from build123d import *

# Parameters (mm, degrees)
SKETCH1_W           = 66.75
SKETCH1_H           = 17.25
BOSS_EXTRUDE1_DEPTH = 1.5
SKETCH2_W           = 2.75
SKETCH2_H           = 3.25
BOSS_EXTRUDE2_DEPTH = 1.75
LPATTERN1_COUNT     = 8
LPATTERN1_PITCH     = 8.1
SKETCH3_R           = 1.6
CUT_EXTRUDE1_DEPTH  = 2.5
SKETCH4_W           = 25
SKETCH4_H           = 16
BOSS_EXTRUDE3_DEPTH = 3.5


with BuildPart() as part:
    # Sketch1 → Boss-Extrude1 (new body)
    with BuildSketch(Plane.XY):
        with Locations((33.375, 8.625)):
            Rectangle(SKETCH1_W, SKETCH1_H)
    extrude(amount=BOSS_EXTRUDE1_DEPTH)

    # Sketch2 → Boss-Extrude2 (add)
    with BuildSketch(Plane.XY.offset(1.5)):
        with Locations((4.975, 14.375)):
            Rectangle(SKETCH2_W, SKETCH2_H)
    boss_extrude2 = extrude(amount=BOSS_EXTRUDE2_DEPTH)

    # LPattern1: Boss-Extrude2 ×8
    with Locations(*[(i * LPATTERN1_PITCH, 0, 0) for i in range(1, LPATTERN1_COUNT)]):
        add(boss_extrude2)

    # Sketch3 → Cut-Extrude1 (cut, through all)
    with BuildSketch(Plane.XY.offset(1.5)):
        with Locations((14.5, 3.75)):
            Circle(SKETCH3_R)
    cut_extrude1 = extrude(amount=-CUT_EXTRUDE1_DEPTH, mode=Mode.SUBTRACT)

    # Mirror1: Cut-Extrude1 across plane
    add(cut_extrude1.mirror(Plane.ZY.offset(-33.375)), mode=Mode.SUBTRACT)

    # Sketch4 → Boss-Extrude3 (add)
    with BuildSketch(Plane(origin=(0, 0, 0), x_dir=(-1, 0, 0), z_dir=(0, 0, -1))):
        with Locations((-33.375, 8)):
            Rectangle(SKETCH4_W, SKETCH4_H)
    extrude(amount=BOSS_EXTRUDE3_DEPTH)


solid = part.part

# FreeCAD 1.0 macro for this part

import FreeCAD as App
import Part
import Sketcher

V = App.Vector

doc = App.newDocument("Part")
params = doc.addObject("Spreadsheet::Sheet", "Params")
for row, (alias, value) in enumerate([
    ("sketch1_width", "66.75 mm"),
    ("sketch1_height", "17.25 mm"),
    ("pad1_length", "1.5 mm"),
    ("sketch2_width", "2.75 mm"),
    ("sketch2_height", "3.25 mm"),
    ("pad2_length", "1.75 mm"),
    ("linearpattern_pitch", "8.1 mm"),
    ("sketch3_diameter", "3.2 mm"),
    ("sketch4_width", "25 mm"),
    ("sketch4_height", "16 mm"),
    ("pad3_length", "3.5 mm"),
], start=1):
    params.set(f"A{row}", alias)
    params.set(f"B{row}", "=" + value)
    params.setAlias(f"B{row}", alias)

body = doc.addObject("PartDesign::Body", "Body")

sketch1 = body.newObject("Sketcher::SketchObject", "Sketch")
sketch1.AttachmentSupport = (doc.getObject("XY_Plane"), [""])
sketch1.MapMode = "FlatFace"
sketch1.addGeometry([
    Part.LineSegment(V(0, 17, 0), V(0, 0, 0)),
    Part.LineSegment(V(0, 0, 0), V(67, 0, 0)),
    Part.LineSegment(V(67, 0, 0), V(67, 17, 0)),
    Part.LineSegment(V(67, 17, 0), V(0, 17, 0)),
], False)
sketch1.addConstraint([
    Sketcher.Constraint("Coincident", 0, 2, 1, 1),
    Sketcher.Constraint("Coincident", 1, 2, 2, 1),
    Sketcher.Constraint("Coincident", 2, 2, 3, 1),
    Sketcher.Constraint("Coincident", 3, 2, 0, 1),
    Sketcher.Constraint("Vertical", 0),
    Sketcher.Constraint("Horizontal", 1),
    Sketcher.Constraint("Vertical", 2),
    Sketcher.Constraint("Horizontal", 3),
    Sketcher.Constraint("Coincident", 0, 2, -1, 1),
    Sketcher.Constraint("DistanceX", 1, 1, 1, 2, 66.75),
    Sketcher.Constraint("DistanceY", 0, 2, 0, 1, 17.25),
])
sketch1.setExpression("Constraints[9]", "Params.sketch1_width")
sketch1.setExpression("Constraints[10]", "Params.sketch1_height")
pad1 = body.newObject("PartDesign::Pad", "Pad")
pad1.Profile = sketch1
pad1.setExpression("Length", "Params.pad1_length")

sketch2 = body.newObject("Sketcher::SketchObject", "Sketch001")
sketch2.AttachmentSupport = (doc.getObject("XY_Plane"), [""])
sketch2.MapMode = "FlatFace"
sketch2.AttachmentOffset = App.Placement(V(0, 0, 1.5), App.Rotation())
sketch2.addGeometry([
    Part.LineSegment(V(3.6, 16, 0), V(3.6, 12.8, 0)),
    Part.LineSegment(V(3.6, 12.8, 0), V(6.3, 12.8, 0)),
    Part.LineSegment(V(6.3, 12.8, 0), V(6.3, 16, 0)),
    Part.LineSegment(V(6.3, 16, 0), V(3.6, 16, 0)),
], False)
sketch2.addConstraint([
    Sketcher.Constraint("Coincident", 0, 2, 1, 1),
    Sketcher.Constraint("Coincident", 1, 2, 2, 1),
    Sketcher.Constraint("Coincident", 2, 2, 3, 1),
    Sketcher.Constraint("Coincident", 3, 2, 0, 1),
    Sketcher.Constraint("Vertical", 0),
    Sketcher.Constraint("Horizontal", 1),
    Sketcher.Constraint("Vertical", 2),
    Sketcher.Constraint("Horizontal", 3),
    Sketcher.Constraint("DistanceY", -1, 1, 2, 2, 16.0),
    Sketcher.Constraint("DistanceX", 1, 1, 1, 2, 2.75),
    Sketcher.Constraint("DistanceY", 0, 2, 0, 1, 3.25),
    Sketcher.Constraint("DistanceX", -1, 1, 0, 2, 3.6),
])
sketch2.setExpression("Constraints[9]", "Params.sketch2_width")
sketch2.setExpression("Constraints[10]", "Params.sketch2_height")
pad2 = body.newObject("PartDesign::Pad", "Pad001")
pad2.Profile = sketch2
pad2.setExpression("Length", "Params.pad2_length")
doc.recompute()

linearpattern = body.newObject("PartDesign::LinearPattern", "LinearPattern")
linearpattern.Originals = [pad2]
linearpattern.Direction = (doc.getObject("X_Axis"), [""])
linearpattern.Mode = "offset"
linearpattern.setExpression("Offset", "Params.linearpattern_pitch")
linearpattern.Occurrences = 8
body.Tip = linearpattern

sketch3 = body.newObject("Sketcher::SketchObject", "Sketch002")
sketch3.AttachmentSupport = (doc.getObject("XY_Plane"), [""])
sketch3.MapMode = "FlatFace"
sketch3.AttachmentOffset = App.Placement(V(0, 0, 1.5), App.Rotation())
sketch3.addGeometry(Part.Circle(V(14.5, 3.8, 0), V(0, 0, 1), 1.6), False)
sketch3.addConstraint([
    Sketcher.Constraint("Diameter", 0, 3.2),
    Sketcher.Constraint("DistanceX", -1, 1, 0, 3, 14.5),
    Sketcher.Constraint("DistanceY", -1, 1, 0, 3, 3.75),
])
sketch3.setExpression("Constraints[0]", "Params.sketch3_diameter")
pocket1 = body.newObject("PartDesign::Pocket", "Pocket")
pocket1.Profile = sketch3
pocket1.Type = "ThroughAll"
doc.recompute()

datumplane = body.newObject("PartDesign::Plane", "DatumPlane")
datumplane.AttachmentSupport = (doc.getObject("YZ_Plane"), [""])
datumplane.MapMode = "FlatFace"
datumplane.AttachmentOffset = App.Placement(V(0, 0, 33.375), App.Rotation())
mirrored = body.newObject("PartDesign::Mirrored", "Mirrored")
mirrored.Originals = [pocket1]
mirrored.MirrorPlane = (datumplane, [""])
body.Tip = mirrored

sketch4 = body.newObject("Sketcher::SketchObject", "Sketch003")
sketch4.AttachmentSupport = (doc.getObject("XY_Plane"), [""])
sketch4.MapMode = "FlatFace"
sketch4.addGeometry([
    Part.LineSegment(V(46, 16, 0), V(46, 0, 0)),
    Part.LineSegment(V(46, 0, 0), V(21, 0, 0)),
    Part.LineSegment(V(21, 0, 0), V(21, 16, 0)),
    Part.LineSegment(V(21, 16, 0), V(46, 16, 0)),
], False)
sketch4.addConstraint([
    Sketcher.Constraint("Coincident", 0, 2, 1, 1),
    Sketcher.Constraint("Coincident", 1, 2, 2, 1),
    Sketcher.Constraint("Coincident", 2, 2, 3, 1),
    Sketcher.Constraint("Coincident", 3, 2, 0, 1),
    Sketcher.Constraint("Vertical", 0),
    Sketcher.Constraint("Horizontal", 1),
    Sketcher.Constraint("Vertical", 2),
    Sketcher.Constraint("Horizontal", 3),
    Sketcher.Constraint("PointOnObject", 0, 2, -1),
    Sketcher.Constraint("DistanceX", 1, 2, 1, 1, 25.0),
    Sketcher.Constraint("DistanceY", 0, 2, 0, 1, 16.0),
    Sketcher.Constraint("DistanceX", -1, 1, 0, 2, 45.875),
])
sketch4.setExpression("Constraints[9]", "Params.sketch4_width")
sketch4.setExpression("Constraints[10]", "Params.sketch4_height")
pad3 = body.newObject("PartDesign::Pad", "Pad002")
pad3.Profile = sketch4
pad3.setExpression("Length", "Params.pad3_length")
pad3.Reversed = True

doc.recompute()
